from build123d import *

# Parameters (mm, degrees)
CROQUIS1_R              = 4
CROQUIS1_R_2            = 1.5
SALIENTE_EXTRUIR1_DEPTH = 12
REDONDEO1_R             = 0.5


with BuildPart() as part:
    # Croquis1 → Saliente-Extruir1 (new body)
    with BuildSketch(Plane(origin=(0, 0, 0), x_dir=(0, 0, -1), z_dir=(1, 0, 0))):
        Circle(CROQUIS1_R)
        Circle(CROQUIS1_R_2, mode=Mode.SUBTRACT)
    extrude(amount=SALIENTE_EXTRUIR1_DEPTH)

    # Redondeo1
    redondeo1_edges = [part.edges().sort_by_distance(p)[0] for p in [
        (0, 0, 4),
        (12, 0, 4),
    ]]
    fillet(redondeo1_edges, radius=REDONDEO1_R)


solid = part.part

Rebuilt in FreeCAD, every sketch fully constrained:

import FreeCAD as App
import Part
import Sketcher

V = App.Vector


def edges_at(feature, points):
    """Names of the edges that pass closest to the given points."""
    edges = feature.Shape.Edges
    near = lambda p: min(range(len(edges)), key=lambda i: edges[i].distToShape(Part.Vertex(*p))[0])
    return sorted({f"Edge{near(p) + 1}" for p in points})

doc = App.newDocument("Part")
body = doc.addObject("PartDesign::Body", "Body")

sketch1 = body.newObject("Sketcher::SketchObject", "Sketch")
sketch1.AttachmentSupport = (doc.getObject("YZ_Plane"), [""])
sketch1.MapMode = "FlatFace"
sketch1.addGeometry(Part.Circle(V(0, 0, 0), V(0, 0, 1), 4), False)
sketch1.addGeometry(Part.Circle(V(0, 0, 0), V(0, 0, 1), 1.5), False)
sketch1.addConstraint(Sketcher.Constraint("Coincident", 0, 3, -1, 1))
sketch1.addConstraint(Sketcher.Constraint("Coincident", 1, 3, -1, 1))
sketch1.addConstraint(Sketcher.Constraint("Diameter", 0, 8.0))
sketch1.addConstraint(Sketcher.Constraint("Diameter", 1, 3.0))
pad1 = body.newObject("PartDesign::Pad", "Pad")
pad1.Profile = sketch1
pad1.Length = 12
doc.recompute()

fillet = body.newObject("PartDesign::Fillet", "Fillet")
fillet.Base = (pad1, edges_at(pad1, [(0, 0, 4), (12, 0, 4)]))
fillet.Radius = 0.5

doc.recompute()
